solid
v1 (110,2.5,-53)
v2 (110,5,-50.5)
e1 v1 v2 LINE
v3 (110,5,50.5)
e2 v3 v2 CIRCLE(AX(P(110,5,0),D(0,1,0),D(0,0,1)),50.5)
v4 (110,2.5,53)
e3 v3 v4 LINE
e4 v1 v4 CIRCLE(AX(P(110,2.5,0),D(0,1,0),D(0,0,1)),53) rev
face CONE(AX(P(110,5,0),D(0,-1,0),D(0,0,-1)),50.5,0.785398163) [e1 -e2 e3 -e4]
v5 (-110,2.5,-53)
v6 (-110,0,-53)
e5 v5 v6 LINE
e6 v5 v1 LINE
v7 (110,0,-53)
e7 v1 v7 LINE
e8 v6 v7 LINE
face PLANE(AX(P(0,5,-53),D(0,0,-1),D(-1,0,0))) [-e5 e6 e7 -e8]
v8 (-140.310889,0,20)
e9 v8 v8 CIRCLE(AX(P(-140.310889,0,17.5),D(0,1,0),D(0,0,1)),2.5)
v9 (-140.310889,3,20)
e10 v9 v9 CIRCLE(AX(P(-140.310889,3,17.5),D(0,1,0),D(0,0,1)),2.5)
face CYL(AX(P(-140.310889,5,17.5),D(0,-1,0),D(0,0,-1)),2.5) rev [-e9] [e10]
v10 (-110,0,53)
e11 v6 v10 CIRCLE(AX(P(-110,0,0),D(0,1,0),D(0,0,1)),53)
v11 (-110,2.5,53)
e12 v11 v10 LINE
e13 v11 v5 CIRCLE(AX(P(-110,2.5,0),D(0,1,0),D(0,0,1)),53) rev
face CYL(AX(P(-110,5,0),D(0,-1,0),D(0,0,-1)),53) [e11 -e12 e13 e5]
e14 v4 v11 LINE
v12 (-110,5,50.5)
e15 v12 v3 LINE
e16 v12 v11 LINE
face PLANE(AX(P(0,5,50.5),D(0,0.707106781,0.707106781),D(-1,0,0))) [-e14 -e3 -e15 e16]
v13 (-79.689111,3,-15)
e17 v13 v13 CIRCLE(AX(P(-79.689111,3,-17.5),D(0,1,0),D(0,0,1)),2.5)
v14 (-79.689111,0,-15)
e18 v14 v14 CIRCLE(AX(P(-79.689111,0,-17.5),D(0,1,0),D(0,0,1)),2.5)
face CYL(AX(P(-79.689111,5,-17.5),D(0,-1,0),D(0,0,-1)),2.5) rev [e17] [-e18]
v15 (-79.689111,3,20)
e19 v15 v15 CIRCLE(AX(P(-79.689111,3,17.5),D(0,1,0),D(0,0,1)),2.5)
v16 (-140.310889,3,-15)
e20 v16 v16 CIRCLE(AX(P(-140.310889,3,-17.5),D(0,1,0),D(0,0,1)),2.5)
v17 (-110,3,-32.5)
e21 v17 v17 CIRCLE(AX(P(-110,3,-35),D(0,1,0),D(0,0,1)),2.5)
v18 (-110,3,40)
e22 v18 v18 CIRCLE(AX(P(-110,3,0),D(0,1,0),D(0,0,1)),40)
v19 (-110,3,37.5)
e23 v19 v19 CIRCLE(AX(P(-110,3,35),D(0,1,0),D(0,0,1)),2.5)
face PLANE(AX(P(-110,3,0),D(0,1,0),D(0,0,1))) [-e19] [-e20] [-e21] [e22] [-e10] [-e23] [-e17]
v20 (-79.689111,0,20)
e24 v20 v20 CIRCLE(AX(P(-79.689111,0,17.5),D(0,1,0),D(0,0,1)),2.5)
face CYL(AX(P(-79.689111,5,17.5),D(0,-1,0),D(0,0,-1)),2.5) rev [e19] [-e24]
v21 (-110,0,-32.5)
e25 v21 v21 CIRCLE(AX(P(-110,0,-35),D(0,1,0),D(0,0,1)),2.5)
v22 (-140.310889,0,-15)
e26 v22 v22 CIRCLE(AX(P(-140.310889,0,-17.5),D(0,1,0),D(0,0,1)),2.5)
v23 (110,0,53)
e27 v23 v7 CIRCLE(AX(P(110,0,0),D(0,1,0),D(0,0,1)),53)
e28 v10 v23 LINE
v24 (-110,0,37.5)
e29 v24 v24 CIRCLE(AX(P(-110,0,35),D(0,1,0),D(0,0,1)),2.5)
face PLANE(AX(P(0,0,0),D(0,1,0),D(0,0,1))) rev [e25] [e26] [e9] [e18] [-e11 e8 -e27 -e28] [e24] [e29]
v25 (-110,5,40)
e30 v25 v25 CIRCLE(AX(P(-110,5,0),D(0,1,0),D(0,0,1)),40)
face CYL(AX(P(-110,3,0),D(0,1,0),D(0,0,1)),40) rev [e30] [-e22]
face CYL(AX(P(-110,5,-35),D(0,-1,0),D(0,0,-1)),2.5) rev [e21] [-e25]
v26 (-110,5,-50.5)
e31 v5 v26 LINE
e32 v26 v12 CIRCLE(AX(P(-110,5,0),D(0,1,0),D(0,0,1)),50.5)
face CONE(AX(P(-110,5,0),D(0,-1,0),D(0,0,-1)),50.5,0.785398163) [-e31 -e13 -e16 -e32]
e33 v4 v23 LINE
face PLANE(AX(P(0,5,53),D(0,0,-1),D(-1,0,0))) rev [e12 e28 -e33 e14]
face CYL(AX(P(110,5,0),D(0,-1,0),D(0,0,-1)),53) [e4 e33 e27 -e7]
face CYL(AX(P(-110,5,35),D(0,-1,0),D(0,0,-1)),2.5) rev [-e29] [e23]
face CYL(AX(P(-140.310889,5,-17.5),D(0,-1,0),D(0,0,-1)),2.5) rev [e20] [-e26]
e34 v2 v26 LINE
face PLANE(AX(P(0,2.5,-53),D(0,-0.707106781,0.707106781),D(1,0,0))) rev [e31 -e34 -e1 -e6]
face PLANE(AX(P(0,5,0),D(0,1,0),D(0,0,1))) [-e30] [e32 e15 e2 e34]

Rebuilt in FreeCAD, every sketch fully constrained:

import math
import FreeCAD as App
import Part
import Sketcher

V = App.Vector
Q = App.Units.Quantity


def edges_at(feature, points):
    """Names of the edges that pass closest to the given points."""
    edges = feature.Shape.Edges
    near = lambda p: min(range(len(edges)), key=lambda i: edges[i].distToShape(Part.Vertex(*p))[0])
    return sorted({f"Edge{near(p) + 1}" for p in points})

doc = App.newDocument("Part")
body = doc.addObject("PartDesign::Body", "Body")

# Sketch on XZ plane
sketch1 = doc.addObject("Sketcher::SketchObject", "Sketch")
body.addObject(sketch1)
sketch1.AttachmentSupport = (doc.XZ_Plane, [""])
sketch1.MapMode = "FlatFace"
sketch1.addGeometry([
    Part.LineSegment(V(-110, 53, 0), V(110, 53, 0)),  # 0
    Part.ArcOfCircle(Part.Circle(V(110, 0, 0), V(0, 0, 1), 53), math.radians(-90), math.radians(90)),  # 1
    Part.LineSegment(V(110, -53, 0), V(-110, -53, 0)),  # 2
    Part.ArcOfCircle(Part.Circle(V(-110, 0, 0), V(0, 0, 1), 53), math.radians(90), math.radians(270)),  # 3
    Part.Circle(V(-140.3, 17.5, 0), V(0, 0, 1), 2.5),  # 4
    Part.Circle(V(-110, 35, 0), V(0, 0, 1), 2.5),  # 5
    Part.Circle(V(-79.7, 17.5, 0), V(0, 0, 1), 2.5),  # 6
    Part.Circle(V(-140.3, -17.5, 0), V(0, 0, 1), 2.5),  # 7
    Part.Circle(V(-79.7, -17.5, 0), V(0, 0, 1), 2.5),  # 8
    Part.Circle(V(-110, -35, 0), V(0, 0, 1), 2.5),  # 9
], False)
sketch1.addConstraint([
    Sketcher.Constraint("Tangent", 0, 2, 1, 2),
    Sketcher.Constraint("Tangent", 1, 1, 2, 1),
    Sketcher.Constraint("Tangent", 2, 2, 3, 2),
    Sketcher.Constraint("Tangent", 3, 1, 0, 1),
    Sketcher.Constraint("Horizontal", 0),
    Sketcher.Constraint("Horizontal", 2),
    Sketcher.Constraint("Equal", 4, 5),
    Sketcher.Constraint("Equal", 5, 6),
    Sketcher.Constraint("Equal", 6, 7),
    Sketcher.Constraint("Equal", 7, 8),
    Sketcher.Constraint("Equal", 8, 9),
    Sketcher.Constraint("Symmetric", 1, 3, 3, 3, -1, 1),
    Sketcher.Constraint("Symmetric", 4, 3, 7, 3, -1),
    Sketcher.Constraint("Symmetric", 6, 3, 8, 3, -1),
    Sketcher.Constraint("Symmetric", 5, 3, 9, 3, -1),
    Sketcher.Constraint("Horizontal", 4, 3, 6, 3),
    Sketcher.Constraint("Vertical", 3, 3, 5, 3),
    Sketcher.Constraint("Diameter", 4, Q("5 mm")),
    Sketcher.Constraint("Radius", 1, Q("53 mm")),
    Sketcher.Constraint("DistanceX", 0, 1, 0, 2, Q("220 mm")),
    Sketcher.Constraint("DistanceY", -1, 1, 5, 3, Q("35 mm")),
    Sketcher.Constraint("DistanceY", 7, 3, 4, 3, Q("35 mm")),
    Sketcher.Constraint("DistanceX", 4, 3, -1, 1, Q("140.310889 mm")),
    Sketcher.Constraint("DistanceX", 6, 3, -1, 1, Q("79.689111 mm")),
])
pad1 = doc.addObject("PartDesign::Pad", "Pad")
body.addObject(pad1)
pad1.Profile = sketch1
pad1.Length = 5
pad1.Reversed = True

# Sketch on XZ plane
sketch2 = doc.addObject("Sketcher::SketchObject", "Sketch001")
body.addObject(sketch2)
sketch2.AttachmentSupport = (doc.XZ_Plane, [""])
sketch2.MapMode = "FlatFace"
sketch2.AttachmentOffset = App.Placement(V(0, 0, -5), App.Rotation())
sketch2.addGeometry(Part.Circle(V(-110, 0, 0), V(0, 0, 1), 40), False)
sketch2.addConstraint([
    Sketcher.Constraint("PointOnObject", 0, 3, -1),
    Sketcher.Constraint("Diameter", 0, Q("80 mm")),
    Sketcher.Constraint("DistanceX", 0, 3, -1, 1, Q("110 mm")),
])
pocket1 = doc.addObject("PartDesign::Pocket", "Pocket")
body.addObject(pocket1)
pocket1.Profile = sketch2
pocket1.Length = 2
pocket1.Reversed = True
doc.recompute()

chamfer = doc.addObject("PartDesign::Chamfer", "Chamfer")
body.addObject(chamfer)
chamfer.Base = (pocket1, edges_at(pocket1, [
    (-163, 5, 0),
    (0, 5, 53),
    (163, 5, 0),
    (0, 5, -53),
]))
chamfer.Size = 2.5

doc.recompute()
